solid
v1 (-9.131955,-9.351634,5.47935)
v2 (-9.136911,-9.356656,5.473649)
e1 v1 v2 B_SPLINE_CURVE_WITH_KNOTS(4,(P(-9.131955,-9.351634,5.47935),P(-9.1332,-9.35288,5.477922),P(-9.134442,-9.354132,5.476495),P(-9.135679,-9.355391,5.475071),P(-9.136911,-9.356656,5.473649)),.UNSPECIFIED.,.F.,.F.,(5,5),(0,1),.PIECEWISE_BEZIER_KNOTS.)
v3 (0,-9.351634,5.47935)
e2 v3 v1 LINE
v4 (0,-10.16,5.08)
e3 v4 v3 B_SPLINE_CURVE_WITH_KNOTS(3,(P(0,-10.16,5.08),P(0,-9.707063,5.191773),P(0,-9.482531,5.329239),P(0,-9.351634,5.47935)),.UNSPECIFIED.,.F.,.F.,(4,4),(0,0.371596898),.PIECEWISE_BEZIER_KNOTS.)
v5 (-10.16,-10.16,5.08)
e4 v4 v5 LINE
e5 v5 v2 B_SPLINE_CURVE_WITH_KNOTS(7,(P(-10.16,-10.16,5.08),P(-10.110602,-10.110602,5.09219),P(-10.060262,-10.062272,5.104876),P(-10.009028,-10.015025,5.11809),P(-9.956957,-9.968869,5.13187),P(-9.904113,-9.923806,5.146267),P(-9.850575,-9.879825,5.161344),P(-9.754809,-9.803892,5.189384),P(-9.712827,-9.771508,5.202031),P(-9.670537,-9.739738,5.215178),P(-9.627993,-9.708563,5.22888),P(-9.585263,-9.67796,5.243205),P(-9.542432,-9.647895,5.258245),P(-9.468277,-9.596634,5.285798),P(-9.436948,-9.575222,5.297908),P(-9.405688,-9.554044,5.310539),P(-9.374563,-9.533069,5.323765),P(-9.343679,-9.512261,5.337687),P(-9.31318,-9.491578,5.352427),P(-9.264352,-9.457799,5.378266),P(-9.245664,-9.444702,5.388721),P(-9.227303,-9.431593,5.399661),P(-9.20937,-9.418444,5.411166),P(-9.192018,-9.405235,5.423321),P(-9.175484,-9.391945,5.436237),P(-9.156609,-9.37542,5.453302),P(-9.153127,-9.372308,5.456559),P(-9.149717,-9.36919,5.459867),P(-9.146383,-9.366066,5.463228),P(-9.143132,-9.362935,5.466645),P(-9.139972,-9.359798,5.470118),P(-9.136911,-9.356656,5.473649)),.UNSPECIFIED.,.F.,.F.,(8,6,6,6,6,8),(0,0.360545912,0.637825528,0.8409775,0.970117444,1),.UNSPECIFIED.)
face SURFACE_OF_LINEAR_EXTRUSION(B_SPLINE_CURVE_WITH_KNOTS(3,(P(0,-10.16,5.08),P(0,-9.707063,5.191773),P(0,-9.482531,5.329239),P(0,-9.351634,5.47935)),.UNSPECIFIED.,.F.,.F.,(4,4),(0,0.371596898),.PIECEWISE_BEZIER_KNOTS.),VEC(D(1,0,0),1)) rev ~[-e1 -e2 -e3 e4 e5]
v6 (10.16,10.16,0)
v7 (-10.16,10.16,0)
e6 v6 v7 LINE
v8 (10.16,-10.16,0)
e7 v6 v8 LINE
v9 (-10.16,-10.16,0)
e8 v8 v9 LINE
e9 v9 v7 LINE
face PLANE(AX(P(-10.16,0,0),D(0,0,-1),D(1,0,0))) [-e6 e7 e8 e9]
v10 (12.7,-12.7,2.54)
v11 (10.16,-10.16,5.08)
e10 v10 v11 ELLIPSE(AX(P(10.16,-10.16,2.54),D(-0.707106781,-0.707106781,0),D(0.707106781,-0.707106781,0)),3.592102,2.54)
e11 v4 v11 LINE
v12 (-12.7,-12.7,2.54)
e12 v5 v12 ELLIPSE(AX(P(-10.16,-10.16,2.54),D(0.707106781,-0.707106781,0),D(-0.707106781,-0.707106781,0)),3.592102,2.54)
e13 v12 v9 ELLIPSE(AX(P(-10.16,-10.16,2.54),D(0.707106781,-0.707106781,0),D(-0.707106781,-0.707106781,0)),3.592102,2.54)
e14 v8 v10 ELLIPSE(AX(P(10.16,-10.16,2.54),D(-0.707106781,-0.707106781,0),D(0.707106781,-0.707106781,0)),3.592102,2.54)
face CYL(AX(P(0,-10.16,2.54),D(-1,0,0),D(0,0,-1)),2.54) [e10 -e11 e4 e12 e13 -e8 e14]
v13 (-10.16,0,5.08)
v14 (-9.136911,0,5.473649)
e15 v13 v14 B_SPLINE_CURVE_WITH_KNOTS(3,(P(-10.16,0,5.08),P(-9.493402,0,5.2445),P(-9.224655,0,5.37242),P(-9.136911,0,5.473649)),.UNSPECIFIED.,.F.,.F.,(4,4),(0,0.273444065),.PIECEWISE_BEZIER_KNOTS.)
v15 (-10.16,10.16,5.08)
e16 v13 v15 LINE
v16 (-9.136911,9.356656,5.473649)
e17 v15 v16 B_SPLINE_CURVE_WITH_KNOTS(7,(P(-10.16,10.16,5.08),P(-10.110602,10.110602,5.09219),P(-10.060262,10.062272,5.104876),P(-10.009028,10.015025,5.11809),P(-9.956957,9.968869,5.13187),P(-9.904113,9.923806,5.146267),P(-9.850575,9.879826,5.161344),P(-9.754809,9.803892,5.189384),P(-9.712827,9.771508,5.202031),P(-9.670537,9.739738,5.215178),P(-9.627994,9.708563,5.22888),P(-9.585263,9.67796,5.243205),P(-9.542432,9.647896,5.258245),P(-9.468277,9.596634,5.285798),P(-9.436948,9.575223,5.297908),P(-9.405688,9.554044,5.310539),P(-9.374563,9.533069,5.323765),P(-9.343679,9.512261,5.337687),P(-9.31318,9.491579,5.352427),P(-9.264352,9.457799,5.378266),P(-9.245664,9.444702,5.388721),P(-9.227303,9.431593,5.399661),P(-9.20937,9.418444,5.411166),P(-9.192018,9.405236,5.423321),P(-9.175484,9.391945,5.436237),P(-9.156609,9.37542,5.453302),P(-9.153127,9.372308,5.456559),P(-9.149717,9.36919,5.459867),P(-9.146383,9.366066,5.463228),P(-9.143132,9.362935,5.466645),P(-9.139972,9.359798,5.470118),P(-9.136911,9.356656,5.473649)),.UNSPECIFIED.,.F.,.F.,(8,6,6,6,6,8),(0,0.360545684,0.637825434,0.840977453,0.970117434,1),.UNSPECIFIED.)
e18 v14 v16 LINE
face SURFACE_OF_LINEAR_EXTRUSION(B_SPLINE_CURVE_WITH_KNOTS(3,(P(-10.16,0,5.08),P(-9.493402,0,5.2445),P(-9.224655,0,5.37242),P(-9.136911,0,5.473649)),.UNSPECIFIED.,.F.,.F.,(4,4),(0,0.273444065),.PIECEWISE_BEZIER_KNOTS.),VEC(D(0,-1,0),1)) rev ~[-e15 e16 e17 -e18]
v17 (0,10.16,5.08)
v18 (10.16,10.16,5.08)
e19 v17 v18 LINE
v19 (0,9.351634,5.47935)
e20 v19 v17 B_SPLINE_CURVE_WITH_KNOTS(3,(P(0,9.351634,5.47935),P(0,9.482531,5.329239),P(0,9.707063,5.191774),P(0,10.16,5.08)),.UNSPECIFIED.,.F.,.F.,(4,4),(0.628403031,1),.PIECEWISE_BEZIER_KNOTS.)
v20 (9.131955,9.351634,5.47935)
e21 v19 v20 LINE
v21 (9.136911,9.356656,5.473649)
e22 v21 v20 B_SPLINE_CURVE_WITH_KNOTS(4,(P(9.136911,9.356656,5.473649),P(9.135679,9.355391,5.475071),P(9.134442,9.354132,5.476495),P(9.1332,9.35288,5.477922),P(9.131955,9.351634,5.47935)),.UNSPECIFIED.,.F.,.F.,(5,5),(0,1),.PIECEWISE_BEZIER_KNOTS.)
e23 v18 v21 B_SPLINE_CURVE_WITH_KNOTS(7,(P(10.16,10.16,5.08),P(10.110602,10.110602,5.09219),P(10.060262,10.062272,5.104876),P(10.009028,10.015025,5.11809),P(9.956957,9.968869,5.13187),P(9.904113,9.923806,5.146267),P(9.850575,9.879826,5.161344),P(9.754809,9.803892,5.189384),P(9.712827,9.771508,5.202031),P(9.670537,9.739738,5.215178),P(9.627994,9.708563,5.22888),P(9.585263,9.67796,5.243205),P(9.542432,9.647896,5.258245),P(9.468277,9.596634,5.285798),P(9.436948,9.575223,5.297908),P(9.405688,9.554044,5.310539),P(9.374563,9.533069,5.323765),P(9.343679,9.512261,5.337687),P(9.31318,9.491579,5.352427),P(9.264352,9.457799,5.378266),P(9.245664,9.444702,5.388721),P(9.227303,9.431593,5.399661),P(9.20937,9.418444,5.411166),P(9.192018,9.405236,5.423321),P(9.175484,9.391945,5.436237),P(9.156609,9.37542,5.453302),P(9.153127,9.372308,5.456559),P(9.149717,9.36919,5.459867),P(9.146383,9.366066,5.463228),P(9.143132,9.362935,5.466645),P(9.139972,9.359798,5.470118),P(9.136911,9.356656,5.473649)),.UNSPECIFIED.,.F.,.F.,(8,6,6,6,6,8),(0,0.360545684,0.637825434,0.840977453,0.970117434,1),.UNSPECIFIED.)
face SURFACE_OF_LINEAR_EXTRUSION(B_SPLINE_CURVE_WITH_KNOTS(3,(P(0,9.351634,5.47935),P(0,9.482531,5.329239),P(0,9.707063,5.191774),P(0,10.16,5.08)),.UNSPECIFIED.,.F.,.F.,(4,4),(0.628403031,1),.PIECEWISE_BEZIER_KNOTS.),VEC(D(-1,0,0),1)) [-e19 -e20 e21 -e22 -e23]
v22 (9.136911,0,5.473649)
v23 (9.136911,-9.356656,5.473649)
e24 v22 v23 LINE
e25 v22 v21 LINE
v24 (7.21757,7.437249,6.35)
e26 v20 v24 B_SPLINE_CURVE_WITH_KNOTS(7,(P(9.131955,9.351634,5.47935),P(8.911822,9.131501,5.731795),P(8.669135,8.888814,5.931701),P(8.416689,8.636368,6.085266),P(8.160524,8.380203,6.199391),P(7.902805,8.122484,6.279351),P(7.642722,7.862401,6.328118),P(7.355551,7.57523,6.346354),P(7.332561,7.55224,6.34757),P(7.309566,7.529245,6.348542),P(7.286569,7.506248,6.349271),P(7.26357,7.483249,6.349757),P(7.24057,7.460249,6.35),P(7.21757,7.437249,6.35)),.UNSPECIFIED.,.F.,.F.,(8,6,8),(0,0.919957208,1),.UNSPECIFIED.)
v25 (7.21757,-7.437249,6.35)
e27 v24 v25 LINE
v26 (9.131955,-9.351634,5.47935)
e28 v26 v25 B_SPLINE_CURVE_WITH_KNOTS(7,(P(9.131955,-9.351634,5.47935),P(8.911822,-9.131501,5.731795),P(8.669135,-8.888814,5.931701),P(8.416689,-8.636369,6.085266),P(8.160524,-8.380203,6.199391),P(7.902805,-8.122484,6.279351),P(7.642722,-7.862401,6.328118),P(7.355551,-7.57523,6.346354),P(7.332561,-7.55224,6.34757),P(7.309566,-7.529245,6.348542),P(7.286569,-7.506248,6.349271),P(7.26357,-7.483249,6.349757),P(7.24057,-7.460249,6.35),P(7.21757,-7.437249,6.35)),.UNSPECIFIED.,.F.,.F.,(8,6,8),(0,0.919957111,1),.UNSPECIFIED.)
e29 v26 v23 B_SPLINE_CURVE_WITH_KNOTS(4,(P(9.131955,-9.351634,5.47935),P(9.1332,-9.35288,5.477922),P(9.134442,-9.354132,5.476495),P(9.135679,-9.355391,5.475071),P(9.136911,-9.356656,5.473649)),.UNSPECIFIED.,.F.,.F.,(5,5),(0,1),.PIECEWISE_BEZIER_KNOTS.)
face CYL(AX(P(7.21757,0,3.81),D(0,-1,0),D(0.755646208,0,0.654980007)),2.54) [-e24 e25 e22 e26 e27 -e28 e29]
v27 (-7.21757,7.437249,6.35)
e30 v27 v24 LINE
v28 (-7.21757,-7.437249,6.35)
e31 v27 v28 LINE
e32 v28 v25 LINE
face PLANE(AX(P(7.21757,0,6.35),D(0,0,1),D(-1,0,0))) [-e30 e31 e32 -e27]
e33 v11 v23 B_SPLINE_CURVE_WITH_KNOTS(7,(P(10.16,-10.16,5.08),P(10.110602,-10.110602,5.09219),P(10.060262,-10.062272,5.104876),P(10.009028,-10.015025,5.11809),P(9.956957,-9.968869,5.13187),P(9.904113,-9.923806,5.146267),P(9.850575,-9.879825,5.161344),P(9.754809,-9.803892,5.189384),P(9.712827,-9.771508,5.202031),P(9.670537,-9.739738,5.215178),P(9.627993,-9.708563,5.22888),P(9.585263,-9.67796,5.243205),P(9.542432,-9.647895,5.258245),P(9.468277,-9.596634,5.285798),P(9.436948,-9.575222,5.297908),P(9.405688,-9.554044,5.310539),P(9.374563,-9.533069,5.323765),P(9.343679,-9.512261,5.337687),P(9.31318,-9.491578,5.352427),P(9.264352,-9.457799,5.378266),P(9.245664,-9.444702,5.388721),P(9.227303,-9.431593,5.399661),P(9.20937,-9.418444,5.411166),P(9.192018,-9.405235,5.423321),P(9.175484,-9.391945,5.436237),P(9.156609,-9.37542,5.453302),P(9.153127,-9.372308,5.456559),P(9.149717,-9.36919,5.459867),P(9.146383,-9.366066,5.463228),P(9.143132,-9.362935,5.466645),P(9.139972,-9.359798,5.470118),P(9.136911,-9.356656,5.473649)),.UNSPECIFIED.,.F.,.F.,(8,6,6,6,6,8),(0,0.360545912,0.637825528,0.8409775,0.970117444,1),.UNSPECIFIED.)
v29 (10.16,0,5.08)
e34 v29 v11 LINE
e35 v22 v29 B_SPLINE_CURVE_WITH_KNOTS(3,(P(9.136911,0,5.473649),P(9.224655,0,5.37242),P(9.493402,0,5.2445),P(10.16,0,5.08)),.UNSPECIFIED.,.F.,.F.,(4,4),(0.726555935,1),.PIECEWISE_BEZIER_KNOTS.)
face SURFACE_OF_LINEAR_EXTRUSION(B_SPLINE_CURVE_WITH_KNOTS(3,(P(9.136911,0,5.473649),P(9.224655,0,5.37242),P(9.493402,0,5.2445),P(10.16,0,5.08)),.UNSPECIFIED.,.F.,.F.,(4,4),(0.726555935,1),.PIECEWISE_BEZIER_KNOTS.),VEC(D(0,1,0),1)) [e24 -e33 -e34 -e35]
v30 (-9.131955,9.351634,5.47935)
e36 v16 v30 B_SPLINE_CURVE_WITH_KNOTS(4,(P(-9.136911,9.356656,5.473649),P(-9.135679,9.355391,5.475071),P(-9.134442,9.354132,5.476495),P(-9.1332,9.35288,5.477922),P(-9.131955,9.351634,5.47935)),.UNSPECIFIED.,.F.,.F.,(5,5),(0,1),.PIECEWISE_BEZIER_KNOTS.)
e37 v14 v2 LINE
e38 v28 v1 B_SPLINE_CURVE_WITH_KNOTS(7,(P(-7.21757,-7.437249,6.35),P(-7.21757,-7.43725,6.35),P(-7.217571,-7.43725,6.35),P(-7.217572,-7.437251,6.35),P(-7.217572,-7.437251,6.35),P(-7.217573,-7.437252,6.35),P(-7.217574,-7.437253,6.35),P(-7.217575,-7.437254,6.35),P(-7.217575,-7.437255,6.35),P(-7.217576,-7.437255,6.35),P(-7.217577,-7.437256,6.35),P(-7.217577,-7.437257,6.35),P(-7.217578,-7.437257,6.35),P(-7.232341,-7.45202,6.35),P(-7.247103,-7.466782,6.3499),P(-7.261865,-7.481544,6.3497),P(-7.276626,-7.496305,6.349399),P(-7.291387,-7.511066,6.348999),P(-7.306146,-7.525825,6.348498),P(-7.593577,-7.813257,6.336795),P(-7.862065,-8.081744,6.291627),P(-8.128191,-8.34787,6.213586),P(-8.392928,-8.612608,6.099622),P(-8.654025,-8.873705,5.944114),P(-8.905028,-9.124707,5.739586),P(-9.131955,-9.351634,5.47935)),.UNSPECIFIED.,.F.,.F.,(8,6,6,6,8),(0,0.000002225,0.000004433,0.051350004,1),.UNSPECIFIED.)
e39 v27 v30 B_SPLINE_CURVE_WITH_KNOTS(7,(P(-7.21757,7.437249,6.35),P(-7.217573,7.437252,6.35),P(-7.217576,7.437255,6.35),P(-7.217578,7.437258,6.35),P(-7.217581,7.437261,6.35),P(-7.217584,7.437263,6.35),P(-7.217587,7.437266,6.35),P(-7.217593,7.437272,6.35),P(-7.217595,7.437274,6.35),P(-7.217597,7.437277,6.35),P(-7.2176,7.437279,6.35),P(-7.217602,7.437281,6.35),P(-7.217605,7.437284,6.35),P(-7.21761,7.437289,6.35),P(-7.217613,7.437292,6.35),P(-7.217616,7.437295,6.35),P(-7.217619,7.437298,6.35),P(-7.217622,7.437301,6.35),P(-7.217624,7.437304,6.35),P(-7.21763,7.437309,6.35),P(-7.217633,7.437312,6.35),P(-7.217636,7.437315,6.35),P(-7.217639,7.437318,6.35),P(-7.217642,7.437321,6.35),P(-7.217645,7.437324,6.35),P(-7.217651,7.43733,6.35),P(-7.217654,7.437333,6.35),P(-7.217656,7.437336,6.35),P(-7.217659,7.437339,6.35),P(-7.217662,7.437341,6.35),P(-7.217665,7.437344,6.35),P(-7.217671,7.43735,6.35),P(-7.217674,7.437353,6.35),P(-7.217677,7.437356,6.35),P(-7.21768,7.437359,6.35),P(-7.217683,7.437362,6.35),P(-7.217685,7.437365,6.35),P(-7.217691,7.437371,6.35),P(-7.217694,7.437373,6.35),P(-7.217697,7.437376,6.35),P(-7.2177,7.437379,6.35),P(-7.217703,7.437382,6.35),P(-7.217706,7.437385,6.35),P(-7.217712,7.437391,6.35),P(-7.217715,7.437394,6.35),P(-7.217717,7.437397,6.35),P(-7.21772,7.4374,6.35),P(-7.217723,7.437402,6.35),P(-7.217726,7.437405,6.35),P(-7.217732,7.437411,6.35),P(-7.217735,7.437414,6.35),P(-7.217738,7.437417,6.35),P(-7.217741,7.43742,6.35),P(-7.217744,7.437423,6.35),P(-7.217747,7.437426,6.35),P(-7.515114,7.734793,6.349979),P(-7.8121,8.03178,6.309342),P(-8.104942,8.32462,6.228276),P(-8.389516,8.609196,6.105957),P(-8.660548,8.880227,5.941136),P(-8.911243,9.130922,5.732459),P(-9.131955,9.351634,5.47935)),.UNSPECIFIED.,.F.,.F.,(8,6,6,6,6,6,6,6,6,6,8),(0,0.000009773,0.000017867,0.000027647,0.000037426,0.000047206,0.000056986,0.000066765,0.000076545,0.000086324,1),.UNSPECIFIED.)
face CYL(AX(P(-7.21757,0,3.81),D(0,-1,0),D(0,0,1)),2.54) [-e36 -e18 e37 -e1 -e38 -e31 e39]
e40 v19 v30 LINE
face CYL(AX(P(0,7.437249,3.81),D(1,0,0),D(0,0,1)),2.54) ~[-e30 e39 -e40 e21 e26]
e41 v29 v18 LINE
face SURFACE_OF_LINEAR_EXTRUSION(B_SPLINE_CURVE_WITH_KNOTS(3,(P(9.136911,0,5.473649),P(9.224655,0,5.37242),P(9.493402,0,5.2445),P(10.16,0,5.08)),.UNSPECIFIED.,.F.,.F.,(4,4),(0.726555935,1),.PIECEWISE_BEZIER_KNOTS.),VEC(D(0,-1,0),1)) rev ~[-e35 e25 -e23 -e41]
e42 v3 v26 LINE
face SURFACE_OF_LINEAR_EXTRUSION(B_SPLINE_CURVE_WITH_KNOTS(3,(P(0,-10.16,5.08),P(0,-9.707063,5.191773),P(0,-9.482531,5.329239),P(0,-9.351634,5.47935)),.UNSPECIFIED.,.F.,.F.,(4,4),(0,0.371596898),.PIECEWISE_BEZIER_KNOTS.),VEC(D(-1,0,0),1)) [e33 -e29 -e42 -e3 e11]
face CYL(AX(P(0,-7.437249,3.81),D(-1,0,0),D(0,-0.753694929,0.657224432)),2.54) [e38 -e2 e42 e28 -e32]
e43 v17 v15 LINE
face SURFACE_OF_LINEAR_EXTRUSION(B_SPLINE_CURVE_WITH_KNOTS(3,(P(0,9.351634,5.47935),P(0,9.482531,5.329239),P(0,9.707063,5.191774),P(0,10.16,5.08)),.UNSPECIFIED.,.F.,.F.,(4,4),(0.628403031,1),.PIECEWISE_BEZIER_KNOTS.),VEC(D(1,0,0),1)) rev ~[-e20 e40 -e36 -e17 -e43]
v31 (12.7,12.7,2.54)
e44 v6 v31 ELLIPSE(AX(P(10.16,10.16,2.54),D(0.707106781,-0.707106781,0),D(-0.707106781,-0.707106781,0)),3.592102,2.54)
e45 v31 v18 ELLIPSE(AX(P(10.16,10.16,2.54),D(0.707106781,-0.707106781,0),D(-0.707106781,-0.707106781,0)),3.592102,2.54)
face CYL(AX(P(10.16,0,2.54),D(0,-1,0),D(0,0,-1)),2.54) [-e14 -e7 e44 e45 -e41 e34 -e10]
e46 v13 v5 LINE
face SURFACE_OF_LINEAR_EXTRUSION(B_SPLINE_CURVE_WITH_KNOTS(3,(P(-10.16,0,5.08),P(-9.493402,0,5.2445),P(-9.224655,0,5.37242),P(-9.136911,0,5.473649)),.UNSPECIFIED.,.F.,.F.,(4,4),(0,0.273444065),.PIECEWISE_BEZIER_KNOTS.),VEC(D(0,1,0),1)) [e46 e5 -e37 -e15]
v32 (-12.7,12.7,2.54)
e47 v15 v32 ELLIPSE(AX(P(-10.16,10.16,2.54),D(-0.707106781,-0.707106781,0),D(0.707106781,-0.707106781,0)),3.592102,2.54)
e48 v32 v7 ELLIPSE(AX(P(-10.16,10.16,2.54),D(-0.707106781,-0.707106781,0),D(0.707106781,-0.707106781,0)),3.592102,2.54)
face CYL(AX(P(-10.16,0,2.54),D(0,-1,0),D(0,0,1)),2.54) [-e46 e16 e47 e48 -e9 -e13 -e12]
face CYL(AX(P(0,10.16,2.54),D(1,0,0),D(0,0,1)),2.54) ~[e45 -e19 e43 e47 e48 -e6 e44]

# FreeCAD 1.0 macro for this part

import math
import FreeCAD as App
import Part
import Sketcher

V = App.Vector
Q = App.Units.Quantity

doc = App.newDocument("Part")
body = doc.addObject("PartDesign::Body", "Body")

sketch1 = doc.addObject("Sketcher::SketchObject", "Sketch")
body.addObject(sketch1)
sketch1.AttachmentSupport = (doc.XZ_Plane, [""])
sketch1.MapMode = "FlatFace"
sketch1.addGeometry([
    Part.LineSegment(V(-10.16, 0, 0), V(10.16, 0, 0)),
    Part.ArcOfCircle(Part.Circle(V(10.16, 2.54, 0), V(0, 0, 1), 2.54), math.radians(-90), math.radians(90)),
    Part.BSplineCurve([V(9.136911, 5.473649, 0), V(9.224655, 5.37242, 0), V(9.493402, 5.2445, 0), V(10.16, 5.08, 0)], [4, 4], [0.726555935, 1], False, 3, [1, 1, 1, 1], False),
    Part.ArcOfCircle(Part.Circle(V(7.21757, 3.81, 0), V(0, 0, 1), 2.54), math.radians(40.918134), math.radians(90)),
    Part.LineSegment(V(7.21757, 6.35, 0), V(-7.21757, 6.35, 0)),
    Part.ArcOfCircle(Part.Circle(V(-7.21757, 3.81, 0), V(0, 0, 1), 2.54), math.radians(90), math.radians(139.081866)),
    Part.BSplineCurve([V(-10.16, 5.08, 0), V(-9.493402, 5.2445, 0), V(-9.224655, 5.37242, 0), V(-9.136911, 5.473649, 0)], [4, 4], [0, 0.273444065], False, 3, [1, 1, 1, 1], False),
    Part.ArcOfCircle(Part.Circle(V(-10.16, 2.54, 0), V(0, 0, 1), 2.54), math.radians(90), math.radians(270)),
], False)
sketch1.addConstraint([
    Sketcher.Constraint("Block", 2),
    Sketcher.Constraint("Block", 6),
    Sketcher.Constraint("Coincident", 0, 2, 1, 1),
    Sketcher.Constraint("Coincident", 1, 2, 2, 2),
    Sketcher.Constraint("Coincident", 2, 1, 3, 1),
    Sketcher.Constraint("Coincident", 3, 2, 4, 1),
    Sketcher.Constraint("Coincident", 4, 2, 5, 1),
    Sketcher.Constraint("Coincident", 5, 2, 6, 2),
    Sketcher.Constraint("Coincident", 6, 1, 7, 1),
    Sketcher.Constraint("Coincident", 7, 2, 0, 1),
    Sketcher.Constraint("Horizontal", 0),
    Sketcher.Constraint("Horizontal", 4),
    Sketcher.Constraint("PointOnObject", 0, 2, -1),
    Sketcher.Constraint("Radius", 3, Q("0.1 in")),
    Sketcher.Constraint("Radius", 5, Q("0.1 in")),
    Sketcher.Constraint("DistanceX", 0, 1, 0, 2, Q("0.8 in")),
    Sketcher.Constraint("DistanceX", -1, 1, 1, 3, Q("0.4 in")),
    Sketcher.Constraint("DistanceX", 7, 3, -1, 1, Q("0.4 in")),
    Sketcher.Constraint("DistanceX", -1, 1, 0, 2, Q("0.4 in")),
    Sketcher.Constraint("DistanceY", -1, 1, 3, 3, Q("0.15 in")),
    Sketcher.Constraint("DistanceX", 4, 2, 4, 1, Q("14.435139 mm")),
    Sketcher.Constraint("DistanceX", -1, 1, 3, 2, Q("7.21757 mm")),
])
pad1 = doc.addObject("PartDesign::Pad", "Pad")
body.addObject(pad1)
pad1.Profile = sketch1
pad1.Length = Q("1 in")
pad1.Midplane = True

sketch2 = doc.addObject("Sketcher::SketchObject", "Sketch001")
body.addObject(sketch2)
sketch2.AttachmentSupport = (doc.YZ_Plane, [""])
sketch2.MapMode = "FlatFace"
sketch2.addGeometry([
    Part.ArcOfCircle(Part.Circle(V(-10.16, 2.54, 0), V(0, 0, 1), 2.54), math.radians(90), math.radians(270)),
    Part.BSplineCurve([V(-10.16, 5.08, 0), V(-9.707063, 5.191773, 0), V(-9.482531, 5.329239, 0), V(-9.351634, 5.47935, 0)], [4, 4], [0, 0.371596898], False, 3, [1, 1, 1, 1], False),
    Part.ArcOfCircle(Part.Circle(V(-7.437249, 3.81, 0), V(0, 0, 1), 2.54), math.radians(90), math.radians(138.911466)),
    Part.LineSegment(V(-7.437249, 6.35, 0), V(-20.137249, 6.35, 0)),
    Part.LineSegment(V(-20.137249, 6.35, 0), V(-20.137249, 0, 0)),
    Part.LineSegment(V(-20.137249, 0, 0), V(-10.16, 0, 0)),
    Part.LineSegment(V(20.137249, 6.35, 0), V(7.437249, 6.35, 0)),
    Part.ArcOfCircle(Part.Circle(V(7.437249, 3.81, 0), V(0, 0, 1), 2.54), math.radians(41.088539), math.radians(90)),
    Part.BSplineCurve([V(9.351634, 5.47935, 0), V(9.482531, 5.329239, 0), V(9.707063, 5.191774, 0), V(10.16, 5.08, 0)], [4, 4], [0.628403031, 1], False, 3, [1, 1, 1, 1], False),
    Part.ArcOfCircle(Part.Circle(V(10.16, 2.54, 0), V(0, 0, 1), 2.54), math.radians(-90), math.radians(90)),
    Part.LineSegment(V(10.16, 0, 0), V(20.137249, 0, 0)),
    Part.LineSegment(V(20.137249, 0, 0), V(20.137249, 6.35, 0)),
], False)
sketch2.addConstraint([
    Sketcher.Constraint("Block", 1),
    Sketcher.Constraint("Block", 8),
    Sketcher.Constraint("Coincident", 0, 1, 1, 1),
    Sketcher.Constraint("Coincident", 1, 2, 2, 2),
    Sketcher.Constraint("Coincident", 2, 1, 3, 1),
    Sketcher.Constraint("Coincident", 3, 2, 4, 1),
    Sketcher.Constraint("Coincident", 4, 2, 5, 1),
    Sketcher.Constraint("Coincident", 5, 2, 0, 2),
    Sketcher.Constraint("Coincident", 6, 2, 7, 2),
    Sketcher.Constraint("Coincident", 7, 1, 8, 1),
    Sketcher.Constraint("Coincident", 8, 2, 9, 2),
    Sketcher.Constraint("Coincident", 9, 1, 10, 1),
    Sketcher.Constraint("Coincident", 10, 2, 11, 1),
    Sketcher.Constraint("Coincident", 11, 2, 6, 1),
    Sketcher.Constraint("Horizontal", 3),
    Sketcher.Constraint("Vertical", 4),
    Sketcher.Constraint("Horizontal", 5),
    Sketcher.Constraint("Horizontal", 6),
    Sketcher.Constraint("Horizontal", 10),
    Sketcher.Constraint("Vertical", 11),
    Sketcher.Constraint("PointOnObject", 4, 2, -1),
    Sketcher.Constraint("PointOnObject", 9, 1, -1),
    Sketcher.Constraint("Radius", 2, Q("0.1 in")),
    Sketcher.Constraint("Radius", 7, Q("0.1 in")),
    Sketcher.Constraint("DistanceX", 3, 2, 3, 1, Q("0.5 in")),
    Sketcher.Constraint("DistanceX", 6, 2, 6, 1, Q("0.5 in")),
    Sketcher.Constraint("DistanceY", 4, 2, 4, 1, Q("0.25 in")),
    Sketcher.Constraint("DistanceY", 11, 1, 11, 2, Q("0.25 in")),
    Sketcher.Constraint("DistanceX", 0, 3, -1, 1, Q("0.4 in")),
    Sketcher.Constraint("DistanceX", -1, 1, 9, 3, Q("0.4 in")),
    Sketcher.Constraint("DistanceX", 5, 2, -1, 1, Q("0.4 in")),
    Sketcher.Constraint("DistanceX", -1, 1, 9, 1, Q("0.4 in")),
    Sketcher.Constraint("DistanceX", 3, 2, 2, 3, Q("0.5 in")),
    Sketcher.Constraint("DistanceX", 7, 3, 10, 2, Q("0.5 in")),
])
pocket1 = doc.addObject("PartDesign::Pocket", "Pocket")
body.addObject(pocket1)
pocket1.Profile = sketch2
pocket1.Length = Q("1 in")
pocket1.Midplane = True

doc.recompute()
